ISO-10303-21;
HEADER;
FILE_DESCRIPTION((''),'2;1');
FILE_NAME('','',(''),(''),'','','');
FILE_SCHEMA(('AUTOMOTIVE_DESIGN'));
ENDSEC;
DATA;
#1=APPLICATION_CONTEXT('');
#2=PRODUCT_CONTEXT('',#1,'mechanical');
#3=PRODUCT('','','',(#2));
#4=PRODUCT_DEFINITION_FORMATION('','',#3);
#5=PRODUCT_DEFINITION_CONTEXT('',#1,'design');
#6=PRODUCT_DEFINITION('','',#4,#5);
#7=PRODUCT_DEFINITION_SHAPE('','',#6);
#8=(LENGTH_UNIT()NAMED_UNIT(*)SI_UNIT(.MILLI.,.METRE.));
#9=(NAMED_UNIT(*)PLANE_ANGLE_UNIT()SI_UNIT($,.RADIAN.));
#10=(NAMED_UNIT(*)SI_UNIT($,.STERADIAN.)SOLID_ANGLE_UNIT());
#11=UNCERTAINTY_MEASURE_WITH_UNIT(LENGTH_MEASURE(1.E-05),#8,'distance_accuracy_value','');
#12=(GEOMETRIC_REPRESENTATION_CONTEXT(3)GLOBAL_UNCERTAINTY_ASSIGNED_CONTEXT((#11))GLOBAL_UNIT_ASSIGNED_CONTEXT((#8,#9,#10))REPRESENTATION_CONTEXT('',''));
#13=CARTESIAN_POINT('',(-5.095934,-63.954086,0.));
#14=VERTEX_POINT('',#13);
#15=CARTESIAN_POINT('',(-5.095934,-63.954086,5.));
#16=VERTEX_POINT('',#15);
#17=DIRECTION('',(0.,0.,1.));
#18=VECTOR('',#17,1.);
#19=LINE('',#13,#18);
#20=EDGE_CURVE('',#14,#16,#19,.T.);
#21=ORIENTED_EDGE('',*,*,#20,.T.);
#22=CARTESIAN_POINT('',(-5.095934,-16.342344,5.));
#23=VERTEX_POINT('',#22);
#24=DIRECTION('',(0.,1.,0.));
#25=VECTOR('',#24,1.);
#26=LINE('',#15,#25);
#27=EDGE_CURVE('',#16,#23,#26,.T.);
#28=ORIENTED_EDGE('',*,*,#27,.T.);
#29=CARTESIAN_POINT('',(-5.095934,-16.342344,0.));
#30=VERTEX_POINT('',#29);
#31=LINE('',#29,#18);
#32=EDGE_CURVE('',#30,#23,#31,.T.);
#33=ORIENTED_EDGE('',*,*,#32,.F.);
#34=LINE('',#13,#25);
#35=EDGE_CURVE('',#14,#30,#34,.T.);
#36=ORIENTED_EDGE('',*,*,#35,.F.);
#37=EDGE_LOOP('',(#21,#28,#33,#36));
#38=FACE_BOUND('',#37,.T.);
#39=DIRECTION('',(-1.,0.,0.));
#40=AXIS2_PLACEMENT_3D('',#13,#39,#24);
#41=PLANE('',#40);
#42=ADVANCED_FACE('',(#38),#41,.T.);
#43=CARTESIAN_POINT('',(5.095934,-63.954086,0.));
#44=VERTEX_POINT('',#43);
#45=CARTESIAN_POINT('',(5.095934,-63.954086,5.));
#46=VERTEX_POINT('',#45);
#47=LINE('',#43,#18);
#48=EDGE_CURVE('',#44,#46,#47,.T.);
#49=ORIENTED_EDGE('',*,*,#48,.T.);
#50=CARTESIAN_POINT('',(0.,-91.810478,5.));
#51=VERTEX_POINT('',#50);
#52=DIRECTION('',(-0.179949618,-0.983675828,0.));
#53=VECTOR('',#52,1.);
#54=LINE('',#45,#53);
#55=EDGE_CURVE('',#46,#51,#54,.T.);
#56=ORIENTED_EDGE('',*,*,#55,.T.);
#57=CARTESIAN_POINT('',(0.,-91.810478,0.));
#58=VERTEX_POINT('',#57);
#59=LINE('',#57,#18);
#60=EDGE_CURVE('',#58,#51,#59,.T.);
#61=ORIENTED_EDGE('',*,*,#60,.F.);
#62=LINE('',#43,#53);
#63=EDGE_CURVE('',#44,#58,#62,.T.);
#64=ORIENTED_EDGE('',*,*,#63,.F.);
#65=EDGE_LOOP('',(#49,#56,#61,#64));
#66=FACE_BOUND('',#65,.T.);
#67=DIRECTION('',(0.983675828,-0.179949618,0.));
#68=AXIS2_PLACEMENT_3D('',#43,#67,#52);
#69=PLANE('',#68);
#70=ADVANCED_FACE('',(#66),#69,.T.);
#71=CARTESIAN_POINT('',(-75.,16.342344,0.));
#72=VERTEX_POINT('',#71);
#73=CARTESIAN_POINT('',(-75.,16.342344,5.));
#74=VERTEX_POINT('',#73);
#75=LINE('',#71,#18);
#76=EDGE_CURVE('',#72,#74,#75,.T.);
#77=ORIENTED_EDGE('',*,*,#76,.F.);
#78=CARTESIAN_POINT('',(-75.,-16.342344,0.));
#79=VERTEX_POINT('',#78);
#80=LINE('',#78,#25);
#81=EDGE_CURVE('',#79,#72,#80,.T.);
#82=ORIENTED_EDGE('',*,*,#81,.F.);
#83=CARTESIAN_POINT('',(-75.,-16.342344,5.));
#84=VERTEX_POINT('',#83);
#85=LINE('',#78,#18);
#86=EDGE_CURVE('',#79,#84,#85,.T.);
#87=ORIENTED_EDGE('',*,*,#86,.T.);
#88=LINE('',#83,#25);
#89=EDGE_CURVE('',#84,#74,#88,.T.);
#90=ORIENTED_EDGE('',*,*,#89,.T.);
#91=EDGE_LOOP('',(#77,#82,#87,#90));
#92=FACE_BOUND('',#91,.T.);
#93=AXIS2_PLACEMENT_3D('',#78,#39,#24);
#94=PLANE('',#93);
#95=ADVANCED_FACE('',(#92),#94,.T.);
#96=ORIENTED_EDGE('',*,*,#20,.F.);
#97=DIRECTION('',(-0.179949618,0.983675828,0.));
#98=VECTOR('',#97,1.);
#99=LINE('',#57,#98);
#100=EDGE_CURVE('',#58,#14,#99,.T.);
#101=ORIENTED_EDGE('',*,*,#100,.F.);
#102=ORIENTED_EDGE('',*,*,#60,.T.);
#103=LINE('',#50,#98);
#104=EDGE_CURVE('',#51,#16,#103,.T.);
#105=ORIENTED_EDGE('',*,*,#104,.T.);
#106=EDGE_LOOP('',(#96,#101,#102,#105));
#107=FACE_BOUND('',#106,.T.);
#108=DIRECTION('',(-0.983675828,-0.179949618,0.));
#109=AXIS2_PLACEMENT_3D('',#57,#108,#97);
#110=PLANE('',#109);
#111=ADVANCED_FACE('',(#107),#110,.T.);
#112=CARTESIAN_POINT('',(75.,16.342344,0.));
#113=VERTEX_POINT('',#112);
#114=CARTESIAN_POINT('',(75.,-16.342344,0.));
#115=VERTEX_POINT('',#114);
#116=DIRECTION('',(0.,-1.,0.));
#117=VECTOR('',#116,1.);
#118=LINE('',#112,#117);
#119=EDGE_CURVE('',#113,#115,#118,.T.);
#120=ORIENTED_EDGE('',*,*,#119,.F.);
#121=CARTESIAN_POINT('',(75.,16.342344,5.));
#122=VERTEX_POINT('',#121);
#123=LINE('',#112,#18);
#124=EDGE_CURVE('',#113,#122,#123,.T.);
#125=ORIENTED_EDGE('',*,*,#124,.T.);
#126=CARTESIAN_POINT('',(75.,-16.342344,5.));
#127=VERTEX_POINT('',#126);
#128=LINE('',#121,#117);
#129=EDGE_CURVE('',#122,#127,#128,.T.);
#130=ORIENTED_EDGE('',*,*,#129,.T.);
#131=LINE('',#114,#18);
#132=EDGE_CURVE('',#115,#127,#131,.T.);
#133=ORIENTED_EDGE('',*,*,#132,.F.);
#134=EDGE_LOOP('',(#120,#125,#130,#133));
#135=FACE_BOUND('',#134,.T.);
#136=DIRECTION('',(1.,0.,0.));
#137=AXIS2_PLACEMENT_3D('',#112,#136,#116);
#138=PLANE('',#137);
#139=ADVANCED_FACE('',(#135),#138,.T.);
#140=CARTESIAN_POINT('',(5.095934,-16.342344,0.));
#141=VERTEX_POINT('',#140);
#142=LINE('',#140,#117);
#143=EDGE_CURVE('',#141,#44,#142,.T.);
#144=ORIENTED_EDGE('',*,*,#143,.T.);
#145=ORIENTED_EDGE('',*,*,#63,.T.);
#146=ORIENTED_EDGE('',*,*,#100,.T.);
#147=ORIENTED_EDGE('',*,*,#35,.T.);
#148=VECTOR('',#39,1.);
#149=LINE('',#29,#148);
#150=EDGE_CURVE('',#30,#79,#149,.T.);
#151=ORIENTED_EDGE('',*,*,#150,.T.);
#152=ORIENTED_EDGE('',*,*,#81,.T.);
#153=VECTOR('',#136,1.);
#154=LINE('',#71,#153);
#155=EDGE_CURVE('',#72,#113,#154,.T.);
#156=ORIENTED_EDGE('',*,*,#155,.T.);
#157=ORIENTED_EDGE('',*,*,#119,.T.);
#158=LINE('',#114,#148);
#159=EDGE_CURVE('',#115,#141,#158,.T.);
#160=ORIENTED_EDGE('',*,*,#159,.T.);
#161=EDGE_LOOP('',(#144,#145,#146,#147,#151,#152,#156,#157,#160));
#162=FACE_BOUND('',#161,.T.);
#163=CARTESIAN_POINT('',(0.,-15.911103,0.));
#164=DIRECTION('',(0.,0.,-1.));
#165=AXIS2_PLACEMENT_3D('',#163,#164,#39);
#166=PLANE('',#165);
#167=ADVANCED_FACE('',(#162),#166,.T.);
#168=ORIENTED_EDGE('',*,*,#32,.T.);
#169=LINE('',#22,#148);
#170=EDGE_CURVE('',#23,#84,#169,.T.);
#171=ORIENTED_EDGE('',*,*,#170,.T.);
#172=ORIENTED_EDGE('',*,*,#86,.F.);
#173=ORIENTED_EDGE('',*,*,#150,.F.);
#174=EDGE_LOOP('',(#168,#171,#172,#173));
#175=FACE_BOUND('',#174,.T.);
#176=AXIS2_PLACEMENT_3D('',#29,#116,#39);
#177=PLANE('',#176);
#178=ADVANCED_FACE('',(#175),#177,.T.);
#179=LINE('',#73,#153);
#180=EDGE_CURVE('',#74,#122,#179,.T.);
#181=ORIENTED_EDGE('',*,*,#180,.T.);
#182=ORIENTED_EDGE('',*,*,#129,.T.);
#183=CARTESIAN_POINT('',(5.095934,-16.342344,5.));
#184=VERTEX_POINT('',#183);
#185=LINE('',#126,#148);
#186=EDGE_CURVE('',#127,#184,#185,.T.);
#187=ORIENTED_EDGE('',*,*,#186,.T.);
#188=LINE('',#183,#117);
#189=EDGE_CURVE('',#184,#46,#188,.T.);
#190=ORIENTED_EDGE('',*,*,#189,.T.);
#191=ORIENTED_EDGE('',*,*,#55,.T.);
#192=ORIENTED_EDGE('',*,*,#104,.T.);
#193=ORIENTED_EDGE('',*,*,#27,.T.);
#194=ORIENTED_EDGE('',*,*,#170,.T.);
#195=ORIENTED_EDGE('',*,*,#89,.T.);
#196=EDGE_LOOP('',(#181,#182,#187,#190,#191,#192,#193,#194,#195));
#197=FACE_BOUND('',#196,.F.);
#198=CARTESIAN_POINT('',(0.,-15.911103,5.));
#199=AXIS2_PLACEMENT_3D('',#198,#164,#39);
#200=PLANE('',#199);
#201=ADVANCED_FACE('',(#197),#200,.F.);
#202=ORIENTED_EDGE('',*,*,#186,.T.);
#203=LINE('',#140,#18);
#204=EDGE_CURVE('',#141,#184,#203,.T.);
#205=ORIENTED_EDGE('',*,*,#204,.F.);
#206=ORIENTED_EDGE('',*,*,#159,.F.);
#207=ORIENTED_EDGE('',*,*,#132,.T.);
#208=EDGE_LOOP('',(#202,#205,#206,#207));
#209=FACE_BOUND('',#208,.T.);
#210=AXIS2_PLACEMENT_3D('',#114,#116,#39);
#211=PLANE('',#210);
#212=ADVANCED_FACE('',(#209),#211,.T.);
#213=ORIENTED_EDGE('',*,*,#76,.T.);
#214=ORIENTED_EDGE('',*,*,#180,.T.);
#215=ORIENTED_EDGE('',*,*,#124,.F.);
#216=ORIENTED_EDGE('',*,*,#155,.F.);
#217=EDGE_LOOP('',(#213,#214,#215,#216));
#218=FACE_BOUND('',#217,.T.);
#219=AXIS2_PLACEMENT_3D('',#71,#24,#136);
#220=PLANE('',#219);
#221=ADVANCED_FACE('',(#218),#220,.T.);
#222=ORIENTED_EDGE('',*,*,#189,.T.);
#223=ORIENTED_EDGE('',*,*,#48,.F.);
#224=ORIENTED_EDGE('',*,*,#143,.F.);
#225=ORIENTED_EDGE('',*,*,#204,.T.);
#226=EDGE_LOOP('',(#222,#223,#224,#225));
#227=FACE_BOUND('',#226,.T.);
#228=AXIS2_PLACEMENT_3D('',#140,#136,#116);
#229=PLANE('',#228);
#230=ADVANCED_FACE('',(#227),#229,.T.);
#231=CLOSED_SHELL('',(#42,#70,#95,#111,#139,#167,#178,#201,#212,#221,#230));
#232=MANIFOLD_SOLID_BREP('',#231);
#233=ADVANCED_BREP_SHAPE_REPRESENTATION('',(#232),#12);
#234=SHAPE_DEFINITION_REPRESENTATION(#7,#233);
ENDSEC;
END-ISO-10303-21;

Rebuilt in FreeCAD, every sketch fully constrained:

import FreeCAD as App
import Part
import Sketcher

V = App.Vector


def add_polygon(sketch, points):
    """Adds a closed chain of lines whose ends are joined by coincident constraints."""
    first, n = sketch.GeometryCount, len(points)
    for a, b in zip(points, points[1:] + points[:1]):
        sketch.addGeometry(Part.LineSegment(App.Vector(*a, 0), App.Vector(*b, 0)), False)
    for i in range(n):
        sketch.addConstraint(Sketcher.Constraint("Coincident", first + i, 2, first + (i + 1) % n, 1))

doc = App.newDocument("Part")
body = doc.addObject("PartDesign::Body", "Body")

# Sketch on XY plane
sketch1 = body.newObject("Sketcher::SketchObject", "Sketch")
sketch1.AttachmentSupport = (doc.getObject("XY_Plane"), [""])
sketch1.MapMode = "FlatFace"
add_polygon(sketch1, [(75, 16), (-75, 16), (-75, -16), (-5, -16), (-5, -64), (0, -92), (5, -64), (5, -16), (75, -16)])  # lines 0-8
sketch1.addConstraint([
    Sketcher.Constraint("Horizontal", 0),
    Sketcher.Constraint("Vertical", 1),
    Sketcher.Constraint("Horizontal", 2),
    Sketcher.Constraint("Vertical", 3),
    Sketcher.Constraint("Vertical", 6),
    Sketcher.Constraint("Horizontal", 7),
    Sketcher.Constraint("Vertical", 8),
    Sketcher.Constraint("Symmetric", 0, 2, 7, 2, -1, 1),
    Sketcher.Constraint("Symmetric", 3, 2, 5, 2, -2),
    Sketcher.Constraint("PointOnObject", 4, 2, -2),
    Sketcher.Constraint("Horizontal", 2, 2, 6, 2),
    Sketcher.Constraint("DistanceX", 0, 2, 0, 1, 150.0),
    Sketcher.Constraint("DistanceY", 3, 2, 3, 1, 47.611742),
    Sketcher.Constraint("Distance", 4, 28.318671),
    Sketcher.Constraint("DistanceX", 2, 1, 2, 2, 69.904066),
    Sketcher.Constraint("DistanceY", 1, 2, 1, 1, 32.684688),
])
pad1 = body.newObject("PartDesign::Pad", "Pad")
pad1.Profile = sketch1
pad1.Length = 5

doc.recompute()
